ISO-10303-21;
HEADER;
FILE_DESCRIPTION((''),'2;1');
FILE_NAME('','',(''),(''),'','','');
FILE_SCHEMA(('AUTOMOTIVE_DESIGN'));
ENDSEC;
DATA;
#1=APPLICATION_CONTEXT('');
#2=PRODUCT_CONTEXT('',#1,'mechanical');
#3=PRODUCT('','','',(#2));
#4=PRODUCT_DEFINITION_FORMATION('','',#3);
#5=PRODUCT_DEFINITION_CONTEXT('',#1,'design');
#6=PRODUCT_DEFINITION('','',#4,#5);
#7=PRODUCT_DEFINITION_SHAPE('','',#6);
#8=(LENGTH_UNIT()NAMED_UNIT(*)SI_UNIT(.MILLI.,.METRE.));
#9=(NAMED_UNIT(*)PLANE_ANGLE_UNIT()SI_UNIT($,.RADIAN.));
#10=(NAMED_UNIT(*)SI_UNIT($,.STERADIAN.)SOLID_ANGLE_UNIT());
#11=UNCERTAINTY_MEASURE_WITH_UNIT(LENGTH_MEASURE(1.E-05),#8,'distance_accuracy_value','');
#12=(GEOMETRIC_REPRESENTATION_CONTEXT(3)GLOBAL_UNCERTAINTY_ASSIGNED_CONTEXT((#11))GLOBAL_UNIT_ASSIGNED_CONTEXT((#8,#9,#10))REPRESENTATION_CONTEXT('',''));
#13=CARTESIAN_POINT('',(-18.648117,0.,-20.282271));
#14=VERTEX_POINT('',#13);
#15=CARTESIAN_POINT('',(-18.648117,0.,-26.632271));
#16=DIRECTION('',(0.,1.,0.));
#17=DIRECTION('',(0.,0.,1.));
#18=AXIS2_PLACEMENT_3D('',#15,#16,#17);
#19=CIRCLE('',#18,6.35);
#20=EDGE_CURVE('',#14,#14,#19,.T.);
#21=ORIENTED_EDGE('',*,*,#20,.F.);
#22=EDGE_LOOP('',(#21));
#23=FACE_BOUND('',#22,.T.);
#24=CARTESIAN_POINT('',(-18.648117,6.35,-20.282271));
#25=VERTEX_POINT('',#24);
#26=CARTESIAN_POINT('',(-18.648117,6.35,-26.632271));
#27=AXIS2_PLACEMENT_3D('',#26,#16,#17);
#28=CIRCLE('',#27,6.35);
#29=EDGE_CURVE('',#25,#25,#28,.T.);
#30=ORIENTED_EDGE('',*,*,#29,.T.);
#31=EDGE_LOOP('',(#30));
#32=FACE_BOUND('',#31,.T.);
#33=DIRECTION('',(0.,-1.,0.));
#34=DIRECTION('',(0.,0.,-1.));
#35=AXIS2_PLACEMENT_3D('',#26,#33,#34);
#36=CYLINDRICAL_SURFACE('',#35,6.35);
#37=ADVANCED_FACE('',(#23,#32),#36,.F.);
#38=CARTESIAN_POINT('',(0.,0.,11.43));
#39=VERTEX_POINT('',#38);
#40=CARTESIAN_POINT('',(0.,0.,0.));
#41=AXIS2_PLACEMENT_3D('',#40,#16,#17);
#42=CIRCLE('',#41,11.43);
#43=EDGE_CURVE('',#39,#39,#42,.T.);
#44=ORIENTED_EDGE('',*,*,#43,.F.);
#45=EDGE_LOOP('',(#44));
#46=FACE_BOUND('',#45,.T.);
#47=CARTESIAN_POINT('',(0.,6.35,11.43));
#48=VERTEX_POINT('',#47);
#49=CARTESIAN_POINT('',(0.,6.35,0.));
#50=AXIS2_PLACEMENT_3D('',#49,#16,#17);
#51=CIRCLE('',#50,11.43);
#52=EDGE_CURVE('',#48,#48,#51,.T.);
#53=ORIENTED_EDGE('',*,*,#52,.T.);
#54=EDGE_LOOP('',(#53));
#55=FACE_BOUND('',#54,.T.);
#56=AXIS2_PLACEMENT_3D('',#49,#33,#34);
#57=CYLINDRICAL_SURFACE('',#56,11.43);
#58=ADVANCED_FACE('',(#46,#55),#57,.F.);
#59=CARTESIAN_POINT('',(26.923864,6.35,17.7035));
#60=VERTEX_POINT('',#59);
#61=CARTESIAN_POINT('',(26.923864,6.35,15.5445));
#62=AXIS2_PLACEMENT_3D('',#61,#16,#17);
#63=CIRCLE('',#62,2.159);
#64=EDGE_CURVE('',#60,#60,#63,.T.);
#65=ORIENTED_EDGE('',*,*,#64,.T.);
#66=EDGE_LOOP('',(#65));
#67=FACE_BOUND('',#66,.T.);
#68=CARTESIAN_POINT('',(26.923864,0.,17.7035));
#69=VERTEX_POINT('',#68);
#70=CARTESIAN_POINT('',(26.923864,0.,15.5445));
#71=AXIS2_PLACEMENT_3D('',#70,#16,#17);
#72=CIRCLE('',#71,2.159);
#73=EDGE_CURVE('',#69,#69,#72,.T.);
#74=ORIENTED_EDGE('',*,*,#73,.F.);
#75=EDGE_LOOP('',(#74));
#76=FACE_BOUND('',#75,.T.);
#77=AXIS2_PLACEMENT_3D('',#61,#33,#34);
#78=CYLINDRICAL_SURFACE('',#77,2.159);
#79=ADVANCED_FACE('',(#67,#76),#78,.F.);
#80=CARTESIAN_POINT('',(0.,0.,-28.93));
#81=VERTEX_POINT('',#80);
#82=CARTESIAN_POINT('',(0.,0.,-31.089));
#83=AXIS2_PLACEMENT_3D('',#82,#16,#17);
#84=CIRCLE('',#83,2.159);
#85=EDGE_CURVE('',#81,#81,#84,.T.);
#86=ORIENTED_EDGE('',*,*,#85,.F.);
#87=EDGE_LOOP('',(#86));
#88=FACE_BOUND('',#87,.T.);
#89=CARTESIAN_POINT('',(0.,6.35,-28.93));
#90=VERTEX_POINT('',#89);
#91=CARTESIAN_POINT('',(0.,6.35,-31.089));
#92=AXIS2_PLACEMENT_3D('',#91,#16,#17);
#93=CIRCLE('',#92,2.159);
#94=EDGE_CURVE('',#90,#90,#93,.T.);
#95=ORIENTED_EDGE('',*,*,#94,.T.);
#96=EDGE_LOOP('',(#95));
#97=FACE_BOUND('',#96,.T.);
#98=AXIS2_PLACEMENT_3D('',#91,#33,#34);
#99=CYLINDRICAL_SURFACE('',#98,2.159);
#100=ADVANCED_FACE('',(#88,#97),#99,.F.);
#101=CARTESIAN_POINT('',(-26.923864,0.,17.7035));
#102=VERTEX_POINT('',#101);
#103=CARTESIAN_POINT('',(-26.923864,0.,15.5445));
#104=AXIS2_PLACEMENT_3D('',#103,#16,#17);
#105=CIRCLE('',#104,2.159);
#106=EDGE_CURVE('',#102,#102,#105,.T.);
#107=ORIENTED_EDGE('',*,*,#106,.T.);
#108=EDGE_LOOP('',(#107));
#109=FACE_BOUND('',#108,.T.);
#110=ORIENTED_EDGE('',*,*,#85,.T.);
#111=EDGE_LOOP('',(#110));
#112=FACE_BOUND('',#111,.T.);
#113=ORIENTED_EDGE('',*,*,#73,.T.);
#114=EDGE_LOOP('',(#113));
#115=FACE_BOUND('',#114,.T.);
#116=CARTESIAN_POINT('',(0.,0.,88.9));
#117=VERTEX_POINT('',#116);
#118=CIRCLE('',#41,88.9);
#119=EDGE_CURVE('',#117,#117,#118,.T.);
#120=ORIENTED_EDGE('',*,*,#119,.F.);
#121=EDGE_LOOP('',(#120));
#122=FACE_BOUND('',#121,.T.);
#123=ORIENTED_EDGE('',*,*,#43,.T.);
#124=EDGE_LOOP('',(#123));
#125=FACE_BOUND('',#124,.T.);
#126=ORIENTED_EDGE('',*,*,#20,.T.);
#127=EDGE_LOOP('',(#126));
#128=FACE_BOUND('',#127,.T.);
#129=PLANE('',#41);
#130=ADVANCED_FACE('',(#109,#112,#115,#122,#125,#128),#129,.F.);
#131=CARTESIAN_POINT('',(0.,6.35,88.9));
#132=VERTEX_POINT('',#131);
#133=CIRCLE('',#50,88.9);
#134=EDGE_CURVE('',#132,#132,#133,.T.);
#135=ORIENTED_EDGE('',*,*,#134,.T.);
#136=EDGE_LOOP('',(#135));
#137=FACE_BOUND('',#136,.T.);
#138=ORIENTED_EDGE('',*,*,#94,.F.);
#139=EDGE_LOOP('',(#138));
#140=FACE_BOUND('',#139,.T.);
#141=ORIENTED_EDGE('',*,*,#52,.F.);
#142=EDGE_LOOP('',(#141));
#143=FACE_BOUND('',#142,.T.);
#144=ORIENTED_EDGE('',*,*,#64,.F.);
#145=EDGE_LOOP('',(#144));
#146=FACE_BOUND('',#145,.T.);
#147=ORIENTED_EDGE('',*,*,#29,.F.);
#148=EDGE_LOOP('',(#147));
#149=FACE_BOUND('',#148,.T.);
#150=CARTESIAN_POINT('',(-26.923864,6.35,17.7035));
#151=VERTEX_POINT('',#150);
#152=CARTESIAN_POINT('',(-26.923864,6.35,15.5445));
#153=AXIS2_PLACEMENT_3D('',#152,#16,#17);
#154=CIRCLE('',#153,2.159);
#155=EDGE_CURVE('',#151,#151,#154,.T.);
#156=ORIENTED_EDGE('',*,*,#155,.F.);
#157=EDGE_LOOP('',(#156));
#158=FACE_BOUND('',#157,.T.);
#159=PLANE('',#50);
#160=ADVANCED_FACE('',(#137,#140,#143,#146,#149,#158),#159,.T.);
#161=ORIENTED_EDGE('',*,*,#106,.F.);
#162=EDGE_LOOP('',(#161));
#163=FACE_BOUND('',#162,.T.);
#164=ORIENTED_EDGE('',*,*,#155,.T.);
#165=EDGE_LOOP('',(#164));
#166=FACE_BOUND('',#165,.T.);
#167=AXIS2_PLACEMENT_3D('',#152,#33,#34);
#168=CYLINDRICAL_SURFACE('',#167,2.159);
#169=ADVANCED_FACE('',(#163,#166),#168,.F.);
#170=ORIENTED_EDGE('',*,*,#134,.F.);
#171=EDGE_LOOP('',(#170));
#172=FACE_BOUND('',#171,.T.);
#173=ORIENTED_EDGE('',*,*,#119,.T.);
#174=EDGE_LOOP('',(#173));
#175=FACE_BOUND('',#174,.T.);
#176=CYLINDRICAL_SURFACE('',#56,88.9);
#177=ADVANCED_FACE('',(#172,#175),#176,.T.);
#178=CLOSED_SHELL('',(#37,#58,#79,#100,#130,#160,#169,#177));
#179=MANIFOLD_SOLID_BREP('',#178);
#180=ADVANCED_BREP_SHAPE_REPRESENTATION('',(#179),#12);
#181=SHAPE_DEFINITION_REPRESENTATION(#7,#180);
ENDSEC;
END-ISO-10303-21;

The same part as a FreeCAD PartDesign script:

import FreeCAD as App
import Part
import Sketcher
Q = App.Units.Quantity

doc = App.newDocument("Part")
body = doc.addObject("PartDesign::Body", "Body")

sketch1 = body.newObject("Sketcher::SketchObject", "Sketch")
sketch1.AttachmentSupport = (doc.getObject("XZ_Plane"), [""])
sketch1.MapMode = "FlatFace"
sketch1.addGeometry(Part.Circle(App.Vector(0, 0, 0), App.Vector(0, 0, 1), 88.9), False)
sketch1.addGeometry(Part.Circle(App.Vector(-18.648117, -26.632271, 0), App.Vector(0, 0, 1), 6.35), False)
sketch1.addGeometry(Part.Circle(App.Vector(0, -31.089, 0), App.Vector(0, 0, 1), 2.159), False)
sketch1.addGeometry(Part.Circle(App.Vector(-26.923864, 15.5445, 0), App.Vector(0, 0, 1), 2.159), False)
sketch1.addGeometry(Part.Circle(App.Vector(0, 0, 0), App.Vector(0, 0, 1), 11.43), False)
sketch1.addGeometry(Part.Circle(App.Vector(26.923864, 15.5445, 0), App.Vector(0, 0, 1), 2.159), False)
sketch1.addConstraint(Sketcher.Constraint("Coincident", 0, 3, -1, 1))
sketch1.addConstraint(Sketcher.Constraint("Coincident", 4, 3, -1, 1))
sketch1.addConstraint(Sketcher.Constraint("Equal", 2, 3))
sketch1.addConstraint(Sketcher.Constraint("Equal", 3, 5))
sketch1.addConstraint(Sketcher.Constraint("Symmetric", 3, 3, 5, 3, -2))
sketch1.addConstraint(Sketcher.Constraint("PointOnObject", 2, 3, -2))
sketch1.addConstraint(Sketcher.Constraint("Diameter", 0, Q("7 in")))
sketch1.addConstraint(Sketcher.Constraint("Diameter", 1, Q("0.5 in")))
sketch1.addConstraint(Sketcher.Constraint("Diameter", 4, Q("0.9 in")))
sketch1.addConstraint(Sketcher.Constraint("Diameter", 2, Q("0.17 in")))
sketch1.addConstraint(Sketcher.Constraint("DistanceY", 2, 3, -1, 1, Q("31.089 mm")))
sketch1.addConstraint(Sketcher.Constraint("DistanceY", -1, 1, 3, 3, Q("15.5445 mm")))
sketch1.addConstraint(Sketcher.Constraint("DistanceY", 1, 3, -1, 1, Q("26.632271 mm")))
sketch1.addConstraint(Sketcher.Constraint("DistanceX", 1, 3, 5, 3, Q("45.571981 mm")))
sketch1.addConstraint(Sketcher.Constraint("DistanceX", 1, 3, -1, 1, Q("18.648117 mm")))
pad1 = body.newObject("PartDesign::Pad", "Pad")
pad1.Profile = sketch1
pad1.Length = Q("0.25 in")
pad1.Reversed = True

doc.recompute()
